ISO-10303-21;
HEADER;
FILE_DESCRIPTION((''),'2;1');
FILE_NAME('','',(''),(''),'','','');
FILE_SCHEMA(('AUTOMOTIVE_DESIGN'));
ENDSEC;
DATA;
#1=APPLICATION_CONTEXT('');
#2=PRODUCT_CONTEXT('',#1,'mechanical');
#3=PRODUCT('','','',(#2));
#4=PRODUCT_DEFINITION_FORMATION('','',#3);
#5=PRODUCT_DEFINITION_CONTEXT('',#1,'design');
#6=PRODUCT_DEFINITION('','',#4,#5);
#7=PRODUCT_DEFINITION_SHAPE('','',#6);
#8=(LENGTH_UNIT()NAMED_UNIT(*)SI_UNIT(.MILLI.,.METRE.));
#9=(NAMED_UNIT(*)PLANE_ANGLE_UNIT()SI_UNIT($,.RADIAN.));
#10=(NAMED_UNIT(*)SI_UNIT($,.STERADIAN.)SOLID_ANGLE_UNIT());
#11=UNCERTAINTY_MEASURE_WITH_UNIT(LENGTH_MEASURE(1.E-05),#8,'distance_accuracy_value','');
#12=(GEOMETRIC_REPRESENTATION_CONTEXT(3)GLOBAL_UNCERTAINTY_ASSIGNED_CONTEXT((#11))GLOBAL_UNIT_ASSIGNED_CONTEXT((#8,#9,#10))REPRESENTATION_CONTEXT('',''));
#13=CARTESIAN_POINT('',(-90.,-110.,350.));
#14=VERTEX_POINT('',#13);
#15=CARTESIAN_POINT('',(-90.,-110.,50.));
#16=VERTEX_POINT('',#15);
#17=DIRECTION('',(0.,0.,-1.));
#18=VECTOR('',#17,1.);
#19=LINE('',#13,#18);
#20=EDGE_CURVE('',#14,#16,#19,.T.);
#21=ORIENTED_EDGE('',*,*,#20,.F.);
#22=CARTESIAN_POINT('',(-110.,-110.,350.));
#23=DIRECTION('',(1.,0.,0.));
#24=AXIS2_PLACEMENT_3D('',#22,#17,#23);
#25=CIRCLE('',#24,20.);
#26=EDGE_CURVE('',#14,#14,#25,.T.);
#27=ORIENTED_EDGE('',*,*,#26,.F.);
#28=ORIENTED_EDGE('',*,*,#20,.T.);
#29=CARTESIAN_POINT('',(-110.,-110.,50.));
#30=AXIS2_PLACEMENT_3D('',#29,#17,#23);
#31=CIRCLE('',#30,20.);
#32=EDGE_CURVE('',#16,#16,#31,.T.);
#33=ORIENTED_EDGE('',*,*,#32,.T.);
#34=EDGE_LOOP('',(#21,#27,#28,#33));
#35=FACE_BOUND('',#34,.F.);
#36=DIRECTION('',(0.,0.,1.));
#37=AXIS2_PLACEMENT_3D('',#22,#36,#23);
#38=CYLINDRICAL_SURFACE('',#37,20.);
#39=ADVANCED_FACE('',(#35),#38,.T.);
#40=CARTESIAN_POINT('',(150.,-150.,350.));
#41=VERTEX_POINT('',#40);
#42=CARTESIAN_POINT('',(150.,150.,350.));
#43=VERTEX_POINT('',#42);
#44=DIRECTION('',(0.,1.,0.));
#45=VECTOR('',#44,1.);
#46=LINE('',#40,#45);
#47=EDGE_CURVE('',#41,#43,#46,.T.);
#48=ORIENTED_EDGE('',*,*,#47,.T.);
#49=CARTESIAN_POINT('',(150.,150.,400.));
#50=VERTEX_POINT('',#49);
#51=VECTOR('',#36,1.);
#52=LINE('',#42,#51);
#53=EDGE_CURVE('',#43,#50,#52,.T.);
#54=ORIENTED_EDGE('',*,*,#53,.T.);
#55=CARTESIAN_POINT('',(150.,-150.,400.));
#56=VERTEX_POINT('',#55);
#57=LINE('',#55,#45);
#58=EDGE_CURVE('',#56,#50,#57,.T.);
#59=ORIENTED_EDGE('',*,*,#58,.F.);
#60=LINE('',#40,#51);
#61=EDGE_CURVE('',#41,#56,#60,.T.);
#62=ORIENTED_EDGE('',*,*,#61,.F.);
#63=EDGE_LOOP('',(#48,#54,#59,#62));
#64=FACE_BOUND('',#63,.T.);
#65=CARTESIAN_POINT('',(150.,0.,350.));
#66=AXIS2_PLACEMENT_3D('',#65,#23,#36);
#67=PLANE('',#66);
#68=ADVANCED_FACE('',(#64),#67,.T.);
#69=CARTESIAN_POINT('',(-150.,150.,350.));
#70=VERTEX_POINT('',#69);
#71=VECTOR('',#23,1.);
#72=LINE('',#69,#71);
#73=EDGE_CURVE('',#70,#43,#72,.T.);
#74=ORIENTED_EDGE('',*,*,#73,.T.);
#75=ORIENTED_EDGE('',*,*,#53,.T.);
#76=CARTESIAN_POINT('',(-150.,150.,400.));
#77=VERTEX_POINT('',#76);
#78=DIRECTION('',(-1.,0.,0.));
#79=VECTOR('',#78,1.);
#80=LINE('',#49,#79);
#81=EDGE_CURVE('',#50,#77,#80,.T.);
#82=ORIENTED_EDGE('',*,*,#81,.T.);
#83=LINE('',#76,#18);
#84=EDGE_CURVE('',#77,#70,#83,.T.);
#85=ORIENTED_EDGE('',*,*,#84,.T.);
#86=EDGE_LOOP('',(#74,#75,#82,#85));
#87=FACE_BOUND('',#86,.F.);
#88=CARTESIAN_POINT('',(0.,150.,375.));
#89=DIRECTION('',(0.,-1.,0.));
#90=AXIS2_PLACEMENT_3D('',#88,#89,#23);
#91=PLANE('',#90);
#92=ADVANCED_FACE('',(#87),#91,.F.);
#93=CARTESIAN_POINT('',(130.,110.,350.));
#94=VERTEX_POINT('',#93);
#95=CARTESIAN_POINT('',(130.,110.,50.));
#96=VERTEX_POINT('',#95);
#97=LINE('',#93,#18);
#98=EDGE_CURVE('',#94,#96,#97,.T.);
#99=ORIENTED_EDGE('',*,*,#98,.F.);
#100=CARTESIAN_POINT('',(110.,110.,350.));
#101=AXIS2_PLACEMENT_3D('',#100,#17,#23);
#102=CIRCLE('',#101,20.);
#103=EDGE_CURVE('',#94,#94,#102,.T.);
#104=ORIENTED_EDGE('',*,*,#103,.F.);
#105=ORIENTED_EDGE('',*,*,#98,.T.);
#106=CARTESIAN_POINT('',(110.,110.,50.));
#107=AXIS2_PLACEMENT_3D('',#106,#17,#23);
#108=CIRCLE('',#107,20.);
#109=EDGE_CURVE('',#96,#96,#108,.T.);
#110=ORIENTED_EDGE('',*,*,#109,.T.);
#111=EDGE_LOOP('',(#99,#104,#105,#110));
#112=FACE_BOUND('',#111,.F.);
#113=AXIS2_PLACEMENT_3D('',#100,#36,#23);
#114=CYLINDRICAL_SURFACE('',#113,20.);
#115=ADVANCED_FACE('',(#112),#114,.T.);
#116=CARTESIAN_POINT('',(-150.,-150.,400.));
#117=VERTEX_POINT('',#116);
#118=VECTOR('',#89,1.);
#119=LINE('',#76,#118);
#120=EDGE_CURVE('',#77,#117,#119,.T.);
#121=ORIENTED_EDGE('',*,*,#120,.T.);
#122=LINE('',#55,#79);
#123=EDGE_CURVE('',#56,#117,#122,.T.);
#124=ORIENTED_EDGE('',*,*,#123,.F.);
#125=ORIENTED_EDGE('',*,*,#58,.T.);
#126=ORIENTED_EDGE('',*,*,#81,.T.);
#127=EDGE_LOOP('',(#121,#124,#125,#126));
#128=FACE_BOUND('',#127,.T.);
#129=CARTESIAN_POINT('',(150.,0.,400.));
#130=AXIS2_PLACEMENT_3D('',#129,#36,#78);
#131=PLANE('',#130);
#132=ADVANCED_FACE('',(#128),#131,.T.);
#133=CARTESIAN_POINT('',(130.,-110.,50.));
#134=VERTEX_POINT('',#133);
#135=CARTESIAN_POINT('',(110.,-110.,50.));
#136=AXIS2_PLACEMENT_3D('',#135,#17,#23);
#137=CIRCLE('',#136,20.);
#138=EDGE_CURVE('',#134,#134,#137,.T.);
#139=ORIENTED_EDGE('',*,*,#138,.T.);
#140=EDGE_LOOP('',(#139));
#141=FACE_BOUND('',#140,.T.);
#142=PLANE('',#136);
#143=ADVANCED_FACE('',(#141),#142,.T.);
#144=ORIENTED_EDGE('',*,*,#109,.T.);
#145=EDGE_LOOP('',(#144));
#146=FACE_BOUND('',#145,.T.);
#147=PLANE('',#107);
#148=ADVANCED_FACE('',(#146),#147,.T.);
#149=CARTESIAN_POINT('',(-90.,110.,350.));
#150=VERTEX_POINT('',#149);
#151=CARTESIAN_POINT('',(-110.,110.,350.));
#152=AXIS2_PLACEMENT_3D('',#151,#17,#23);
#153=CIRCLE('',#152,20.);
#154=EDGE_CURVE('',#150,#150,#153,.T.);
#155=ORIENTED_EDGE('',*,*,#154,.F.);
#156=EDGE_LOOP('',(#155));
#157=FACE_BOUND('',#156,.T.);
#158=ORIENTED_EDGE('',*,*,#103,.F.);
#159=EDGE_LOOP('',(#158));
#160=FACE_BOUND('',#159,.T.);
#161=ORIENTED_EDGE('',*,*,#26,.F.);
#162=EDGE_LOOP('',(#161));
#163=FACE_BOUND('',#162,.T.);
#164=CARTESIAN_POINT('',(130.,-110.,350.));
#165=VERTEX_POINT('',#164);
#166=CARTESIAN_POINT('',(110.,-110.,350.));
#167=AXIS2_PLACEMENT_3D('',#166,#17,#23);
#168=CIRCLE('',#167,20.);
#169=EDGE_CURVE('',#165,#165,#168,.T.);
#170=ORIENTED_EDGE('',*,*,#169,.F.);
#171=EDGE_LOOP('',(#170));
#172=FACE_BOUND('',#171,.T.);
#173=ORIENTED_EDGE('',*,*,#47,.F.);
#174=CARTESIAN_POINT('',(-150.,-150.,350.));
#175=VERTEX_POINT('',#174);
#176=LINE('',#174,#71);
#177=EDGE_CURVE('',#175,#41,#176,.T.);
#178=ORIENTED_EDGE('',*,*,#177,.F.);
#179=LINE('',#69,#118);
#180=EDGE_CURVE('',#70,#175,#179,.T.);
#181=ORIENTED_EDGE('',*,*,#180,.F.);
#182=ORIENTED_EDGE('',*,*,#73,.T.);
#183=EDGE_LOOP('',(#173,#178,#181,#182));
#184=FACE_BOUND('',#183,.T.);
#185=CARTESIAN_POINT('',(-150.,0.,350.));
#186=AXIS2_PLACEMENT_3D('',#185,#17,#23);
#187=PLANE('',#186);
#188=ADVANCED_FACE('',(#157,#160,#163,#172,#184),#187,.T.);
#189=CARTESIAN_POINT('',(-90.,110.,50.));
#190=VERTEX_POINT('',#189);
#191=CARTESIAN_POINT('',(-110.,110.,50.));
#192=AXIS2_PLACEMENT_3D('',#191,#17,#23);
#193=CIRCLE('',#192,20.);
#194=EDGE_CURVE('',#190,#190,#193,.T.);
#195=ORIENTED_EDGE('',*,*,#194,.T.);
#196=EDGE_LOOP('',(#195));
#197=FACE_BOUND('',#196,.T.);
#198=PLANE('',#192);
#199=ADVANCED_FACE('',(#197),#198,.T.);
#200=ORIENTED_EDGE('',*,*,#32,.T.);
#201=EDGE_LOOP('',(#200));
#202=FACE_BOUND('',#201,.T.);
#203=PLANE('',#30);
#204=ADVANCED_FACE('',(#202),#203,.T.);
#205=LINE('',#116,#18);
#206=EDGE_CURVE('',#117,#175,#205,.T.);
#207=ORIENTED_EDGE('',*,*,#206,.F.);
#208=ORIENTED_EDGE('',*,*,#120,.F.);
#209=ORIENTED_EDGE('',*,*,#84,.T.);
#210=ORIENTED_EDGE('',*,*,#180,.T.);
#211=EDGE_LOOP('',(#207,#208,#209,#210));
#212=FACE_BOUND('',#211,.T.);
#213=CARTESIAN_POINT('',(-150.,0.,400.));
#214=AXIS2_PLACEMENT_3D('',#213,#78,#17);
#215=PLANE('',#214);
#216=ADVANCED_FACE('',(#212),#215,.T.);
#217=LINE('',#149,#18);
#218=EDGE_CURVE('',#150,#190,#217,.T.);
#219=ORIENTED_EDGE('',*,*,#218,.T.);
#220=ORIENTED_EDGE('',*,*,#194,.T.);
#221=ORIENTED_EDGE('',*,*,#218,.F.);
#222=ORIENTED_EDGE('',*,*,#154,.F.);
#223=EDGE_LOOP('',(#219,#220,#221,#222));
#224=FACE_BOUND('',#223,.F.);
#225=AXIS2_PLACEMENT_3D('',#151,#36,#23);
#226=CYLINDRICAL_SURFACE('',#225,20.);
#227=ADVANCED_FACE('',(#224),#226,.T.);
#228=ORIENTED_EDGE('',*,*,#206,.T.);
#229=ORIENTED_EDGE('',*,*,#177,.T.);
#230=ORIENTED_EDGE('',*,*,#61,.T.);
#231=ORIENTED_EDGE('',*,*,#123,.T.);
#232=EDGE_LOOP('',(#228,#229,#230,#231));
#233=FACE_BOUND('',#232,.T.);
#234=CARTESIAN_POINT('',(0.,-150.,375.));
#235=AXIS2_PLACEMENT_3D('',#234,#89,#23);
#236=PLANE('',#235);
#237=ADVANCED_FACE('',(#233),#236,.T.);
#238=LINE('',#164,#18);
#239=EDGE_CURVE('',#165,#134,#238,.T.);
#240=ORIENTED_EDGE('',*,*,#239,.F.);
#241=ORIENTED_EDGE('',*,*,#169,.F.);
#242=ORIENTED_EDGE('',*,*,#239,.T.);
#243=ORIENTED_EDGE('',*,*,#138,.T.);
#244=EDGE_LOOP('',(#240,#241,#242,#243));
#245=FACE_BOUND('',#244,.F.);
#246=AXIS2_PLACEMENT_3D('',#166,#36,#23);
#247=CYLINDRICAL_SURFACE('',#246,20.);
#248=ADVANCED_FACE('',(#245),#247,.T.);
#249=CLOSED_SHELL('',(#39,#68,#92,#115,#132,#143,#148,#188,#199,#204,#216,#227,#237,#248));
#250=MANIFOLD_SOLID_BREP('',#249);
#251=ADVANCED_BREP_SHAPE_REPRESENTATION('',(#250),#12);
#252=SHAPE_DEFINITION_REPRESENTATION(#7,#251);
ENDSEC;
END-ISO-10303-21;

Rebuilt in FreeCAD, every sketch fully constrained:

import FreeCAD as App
import Part
import Sketcher
from FreeCAD import Vector
Q = App.Units.Quantity


def add_polygon(sketch, points):
    """Adds a closed chain of lines whose ends are joined by coincident constraints."""
    first, n = sketch.GeometryCount, len(points)
    for a, b in zip(points, points[1:] + points[:1]):
        sketch.addGeometry(Part.LineSegment(App.Vector(*a, 0), App.Vector(*b, 0)), False)
    for i in range(n):
        sketch.addConstraint(Sketcher.Constraint("Coincident", first + i, 2, first + (i + 1) % n, 1))

doc = App.newDocument("Part")
body = doc.addObject("PartDesign::Body", "Body")

sketch1 = doc.addObject("Sketcher::SketchObject", "Sketch")
body.addObject(sketch1)
sketch1.AttachmentSupport = (doc.XZ_Plane, [""])
sketch1.MapMode = "FlatFace"
add_polygon(sketch1, [(150, 400), (-150, 400), (-150, 350), (150, 350)])
sketch1.addConstraint(Sketcher.Constraint("Horizontal", 0))
sketch1.addConstraint(Sketcher.Constraint("Vertical", 1))
sketch1.addConstraint(Sketcher.Constraint("Horizontal", 2))
sketch1.addConstraint(Sketcher.Constraint("Vertical", 3))
sketch1.addConstraint(Sketcher.Constraint("DistanceX", 0, 2, 0, 1, Q("300 mm")))
sketch1.addConstraint(Sketcher.Constraint("DistanceY", 1, 2, 1, 1, Q("50 mm")))
sketch1.addConstraint(Sketcher.Constraint("DistanceX", 0, 2, -1, 1, Q("150 mm")))
sketch1.addConstraint(Sketcher.Constraint("DistanceY", -1, 1, 0, 2, Q("400 mm")))
pad1 = doc.addObject("PartDesign::Pad", "Pad")
body.addObject(pad1)
pad1.Profile = sketch1
pad1.Length = 300
pad1.Midplane = True

sketch2 = doc.addObject("Sketcher::SketchObject", "Sketch001")
body.addObject(sketch2)
sketch2.AttachmentSupport = (doc.XY_Plane, [""])
sketch2.MapMode = "FlatFace"
sketch2.AttachmentOffset = App.Placement(Vector(0, 0, 350), App.Rotation())
sketch2.addGeometry(Part.Circle(Vector(110, -110, 0), Vector(0, 0, 1), 20), False)
sketch2.addGeometry(Part.Circle(Vector(-110, -110, 0), Vector(0, 0, 1), 20), False)
sketch2.addGeometry(Part.Circle(Vector(-110, 110, 0), Vector(0, 0, 1), 20), False)
sketch2.addGeometry(Part.Circle(Vector(110, 110, 0), Vector(0, 0, 1), 20), False)
sketch2.addConstraint(Sketcher.Constraint("Equal", 0, 1))
sketch2.addConstraint(Sketcher.Constraint("Equal", 1, 2))
sketch2.addConstraint(Sketcher.Constraint("Equal", 2, 3))
sketch2.addConstraint(Sketcher.Constraint("Symmetric", 0, 3, 2, 3, -1, 1))
sketch2.addConstraint(Sketcher.Constraint("Symmetric", 1, 3, 3, 3, -1, 1))
sketch2.addConstraint(Sketcher.Constraint("Symmetric", 0, 3, 1, 3, -2))
sketch2.addConstraint(Sketcher.Constraint("Diameter", 0, Q("40 mm")))
sketch2.addConstraint(Sketcher.Constraint("DistanceX", -1, 1, 0, 3, Q("110 mm")))
sketch2.addConstraint(Sketcher.Constraint("DistanceY", 0, 3, -1, 1, Q("110 mm")))
pad2 = doc.addObject("PartDesign::Pad", "Pad001")
body.addObject(pad2)
pad2.Profile = sketch2
pad2.Length = 300
pad2.Reversed = True

doc.recompute()
